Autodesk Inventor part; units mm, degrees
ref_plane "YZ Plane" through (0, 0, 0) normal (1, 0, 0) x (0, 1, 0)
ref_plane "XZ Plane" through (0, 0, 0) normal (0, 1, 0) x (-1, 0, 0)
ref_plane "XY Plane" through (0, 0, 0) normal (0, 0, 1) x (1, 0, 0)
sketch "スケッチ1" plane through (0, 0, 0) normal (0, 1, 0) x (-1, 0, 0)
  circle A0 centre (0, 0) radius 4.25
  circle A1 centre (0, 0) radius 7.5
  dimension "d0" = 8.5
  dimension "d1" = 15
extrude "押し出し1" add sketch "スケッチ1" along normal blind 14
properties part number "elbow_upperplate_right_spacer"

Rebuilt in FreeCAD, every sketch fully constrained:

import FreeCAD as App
import Part
import Sketcher

doc = App.newDocument("Part")
body = doc.addObject("PartDesign::Body", "Body")

sketch1 = body.newObject("Sketcher::SketchObject", "Sketch")
sketch1.AttachmentSupport = (doc.getObject("XZ_Plane"), [""])
sketch1.MapMode = "FlatFace"
sketch1.addGeometry(Part.Circle(App.Vector(0, 0, 0), App.Vector(0, 0, 1), 7.5), False)
sketch1.addGeometry(Part.Circle(App.Vector(0, 0, 0), App.Vector(0, 0, 1), 4.2), False)
sketch1.addConstraint(Sketcher.Constraint("Coincident", 0, 3, -1, 1))
sketch1.addConstraint(Sketcher.Constraint("Coincident", 1, 3, -1, 1))
sketch1.addConstraint(Sketcher.Constraint("Diameter", 0, 15.0))
sketch1.addConstraint(Sketcher.Constraint("Diameter", 1, 8.5))
pad1 = body.newObject("PartDesign::Pad", "Pad")
pad1.Profile = sketch1
pad1.Length = 14
pad1.Reversed = True

doc.recompute()
